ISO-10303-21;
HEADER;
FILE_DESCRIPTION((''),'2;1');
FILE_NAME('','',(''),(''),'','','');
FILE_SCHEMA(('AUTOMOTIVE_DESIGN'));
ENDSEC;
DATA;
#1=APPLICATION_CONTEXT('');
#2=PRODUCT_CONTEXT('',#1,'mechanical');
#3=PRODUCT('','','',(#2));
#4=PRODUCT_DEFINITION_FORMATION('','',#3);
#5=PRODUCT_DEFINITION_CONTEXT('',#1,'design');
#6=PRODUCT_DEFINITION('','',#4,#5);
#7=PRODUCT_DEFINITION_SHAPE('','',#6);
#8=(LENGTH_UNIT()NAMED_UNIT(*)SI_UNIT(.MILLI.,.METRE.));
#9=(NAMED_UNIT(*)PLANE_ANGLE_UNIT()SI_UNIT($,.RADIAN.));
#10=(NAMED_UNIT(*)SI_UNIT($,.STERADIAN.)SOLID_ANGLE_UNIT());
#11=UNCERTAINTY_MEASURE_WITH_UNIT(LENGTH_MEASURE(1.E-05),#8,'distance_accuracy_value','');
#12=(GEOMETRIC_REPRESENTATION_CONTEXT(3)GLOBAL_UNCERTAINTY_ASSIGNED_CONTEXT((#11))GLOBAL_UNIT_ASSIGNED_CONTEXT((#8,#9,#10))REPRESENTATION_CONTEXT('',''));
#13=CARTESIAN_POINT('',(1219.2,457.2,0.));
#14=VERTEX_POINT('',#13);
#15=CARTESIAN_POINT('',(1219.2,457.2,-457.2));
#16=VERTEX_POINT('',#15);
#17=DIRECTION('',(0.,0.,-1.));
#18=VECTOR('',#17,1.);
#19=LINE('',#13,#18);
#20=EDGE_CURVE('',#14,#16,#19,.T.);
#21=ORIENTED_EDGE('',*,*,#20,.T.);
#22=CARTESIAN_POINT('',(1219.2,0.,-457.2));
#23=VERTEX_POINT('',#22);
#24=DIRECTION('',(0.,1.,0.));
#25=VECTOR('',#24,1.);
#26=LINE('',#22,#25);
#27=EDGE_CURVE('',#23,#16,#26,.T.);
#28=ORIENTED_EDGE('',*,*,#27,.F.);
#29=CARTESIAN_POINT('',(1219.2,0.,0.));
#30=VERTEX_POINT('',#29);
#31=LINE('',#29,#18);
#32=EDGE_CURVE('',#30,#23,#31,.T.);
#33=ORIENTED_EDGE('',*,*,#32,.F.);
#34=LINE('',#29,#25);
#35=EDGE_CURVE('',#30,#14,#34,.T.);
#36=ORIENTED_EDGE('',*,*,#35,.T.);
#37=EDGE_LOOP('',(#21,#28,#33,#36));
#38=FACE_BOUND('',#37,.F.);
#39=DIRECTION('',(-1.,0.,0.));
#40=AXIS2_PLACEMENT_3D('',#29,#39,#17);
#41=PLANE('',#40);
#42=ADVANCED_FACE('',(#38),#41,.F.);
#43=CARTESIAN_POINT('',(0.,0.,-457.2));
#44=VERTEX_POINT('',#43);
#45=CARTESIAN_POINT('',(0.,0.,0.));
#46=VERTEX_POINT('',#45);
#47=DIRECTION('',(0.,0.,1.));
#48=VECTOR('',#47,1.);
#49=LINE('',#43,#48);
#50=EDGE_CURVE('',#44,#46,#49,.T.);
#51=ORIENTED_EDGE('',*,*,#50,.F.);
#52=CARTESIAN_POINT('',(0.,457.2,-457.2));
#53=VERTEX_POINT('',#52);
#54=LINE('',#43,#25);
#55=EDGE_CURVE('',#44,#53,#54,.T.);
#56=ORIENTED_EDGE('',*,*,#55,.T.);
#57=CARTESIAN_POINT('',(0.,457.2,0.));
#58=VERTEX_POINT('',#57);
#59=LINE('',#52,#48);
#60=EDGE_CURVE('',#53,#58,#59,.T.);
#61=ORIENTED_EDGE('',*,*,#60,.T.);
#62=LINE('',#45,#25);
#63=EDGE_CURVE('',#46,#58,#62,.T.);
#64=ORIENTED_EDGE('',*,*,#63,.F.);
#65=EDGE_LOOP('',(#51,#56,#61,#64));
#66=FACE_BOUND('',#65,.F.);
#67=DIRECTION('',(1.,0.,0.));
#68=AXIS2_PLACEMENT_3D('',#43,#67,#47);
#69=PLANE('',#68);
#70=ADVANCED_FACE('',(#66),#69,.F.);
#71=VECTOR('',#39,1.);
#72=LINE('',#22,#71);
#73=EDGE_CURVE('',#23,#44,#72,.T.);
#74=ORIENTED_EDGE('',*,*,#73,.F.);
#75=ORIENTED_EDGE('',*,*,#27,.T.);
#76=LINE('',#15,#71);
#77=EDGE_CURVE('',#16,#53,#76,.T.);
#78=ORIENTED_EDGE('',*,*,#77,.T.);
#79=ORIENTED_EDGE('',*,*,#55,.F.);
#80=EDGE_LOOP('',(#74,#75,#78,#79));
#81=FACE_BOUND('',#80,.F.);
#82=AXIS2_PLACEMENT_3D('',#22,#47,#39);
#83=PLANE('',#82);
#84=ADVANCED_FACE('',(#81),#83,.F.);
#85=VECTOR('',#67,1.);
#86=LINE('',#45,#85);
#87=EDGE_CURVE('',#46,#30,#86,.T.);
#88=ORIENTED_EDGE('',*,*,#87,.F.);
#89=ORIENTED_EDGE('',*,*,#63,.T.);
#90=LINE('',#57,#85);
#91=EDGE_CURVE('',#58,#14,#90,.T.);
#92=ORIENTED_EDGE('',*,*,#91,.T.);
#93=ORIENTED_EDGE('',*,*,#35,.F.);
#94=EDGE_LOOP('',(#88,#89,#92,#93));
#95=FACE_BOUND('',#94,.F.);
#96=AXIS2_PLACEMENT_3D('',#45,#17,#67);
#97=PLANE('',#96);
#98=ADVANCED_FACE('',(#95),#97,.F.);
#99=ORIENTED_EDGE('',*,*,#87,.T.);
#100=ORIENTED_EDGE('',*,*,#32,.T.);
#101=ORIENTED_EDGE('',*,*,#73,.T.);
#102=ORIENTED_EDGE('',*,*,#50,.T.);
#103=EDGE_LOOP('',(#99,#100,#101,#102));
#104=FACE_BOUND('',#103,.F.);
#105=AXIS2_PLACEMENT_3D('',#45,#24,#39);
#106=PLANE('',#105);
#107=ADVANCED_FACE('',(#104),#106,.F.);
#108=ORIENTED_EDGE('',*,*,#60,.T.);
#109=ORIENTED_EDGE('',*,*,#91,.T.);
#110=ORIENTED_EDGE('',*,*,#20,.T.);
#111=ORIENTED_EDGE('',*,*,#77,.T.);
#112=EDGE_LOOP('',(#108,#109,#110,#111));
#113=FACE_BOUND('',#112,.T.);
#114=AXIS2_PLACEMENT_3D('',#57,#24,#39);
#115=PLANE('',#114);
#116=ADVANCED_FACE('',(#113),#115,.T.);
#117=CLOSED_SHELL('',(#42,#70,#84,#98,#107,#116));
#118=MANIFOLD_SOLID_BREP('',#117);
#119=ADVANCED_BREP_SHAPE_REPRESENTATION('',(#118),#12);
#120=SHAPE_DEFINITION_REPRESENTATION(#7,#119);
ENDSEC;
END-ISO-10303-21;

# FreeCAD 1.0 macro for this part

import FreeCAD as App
import Part
import Sketcher
Q = App.Units.Quantity


def add_polygon(sketch, points):
    """Adds a closed chain of lines whose ends are joined by coincident constraints."""
    first, n = sketch.GeometryCount, len(points)
    for a, b in zip(points, points[1:] + points[:1]):
        sketch.addGeometry(Part.LineSegment(App.Vector(*a, 0), App.Vector(*b, 0)), False)
    for i in range(n):
        sketch.addConstraint(Sketcher.Constraint("Coincident", first + i, 2, first + (i + 1) % n, 1))

doc = App.newDocument("Part")
params = doc.addObject("Spreadsheet::Sheet", "Params")
for row, (alias, value) in enumerate([
    ("sketch1_width", "48 in"),
    ("sketch1_height", "18 in"),
    ("pad1_length", "18 in"),
], start=1):
    params.set(f"A{row}", alias)
    params.set(f"B{row}", "=" + value)
    params.setAlias(f"B{row}", alias)

body = doc.addObject("PartDesign::Body", "Body")

sketch1 = body.newObject("Sketcher::SketchObject", "Sketch")
sketch1.AttachmentSupport = (doc.getObject("XZ_Plane"), [""])
sketch1.MapMode = "FlatFace"
add_polygon(sketch1, [(0, -457), (0, 0), (1219, 0), (1219, -457)])
sketch1.addConstraint([
    Sketcher.Constraint("Vertical", 0),
    Sketcher.Constraint("Horizontal", 1),
    Sketcher.Constraint("Vertical", 2),
    Sketcher.Constraint("Horizontal", 3),
    Sketcher.Constraint("Coincident", 0, 2, -1, 1),
    Sketcher.Constraint("DistanceX", 1, 1, 1, 2, Q("48 in")),
    Sketcher.Constraint("DistanceY", 0, 1, 0, 2, Q("18 in")),
])
sketch1.setExpression("Constraints[9]", "Params.sketch1_width")
sketch1.setExpression("Constraints[10]", "Params.sketch1_height")
pad1 = body.newObject("PartDesign::Pad", "Pad")
pad1.Profile = sketch1
pad1.setExpression("Length", "Params.pad1_length")
pad1.Reversed = True

doc.recompute()
